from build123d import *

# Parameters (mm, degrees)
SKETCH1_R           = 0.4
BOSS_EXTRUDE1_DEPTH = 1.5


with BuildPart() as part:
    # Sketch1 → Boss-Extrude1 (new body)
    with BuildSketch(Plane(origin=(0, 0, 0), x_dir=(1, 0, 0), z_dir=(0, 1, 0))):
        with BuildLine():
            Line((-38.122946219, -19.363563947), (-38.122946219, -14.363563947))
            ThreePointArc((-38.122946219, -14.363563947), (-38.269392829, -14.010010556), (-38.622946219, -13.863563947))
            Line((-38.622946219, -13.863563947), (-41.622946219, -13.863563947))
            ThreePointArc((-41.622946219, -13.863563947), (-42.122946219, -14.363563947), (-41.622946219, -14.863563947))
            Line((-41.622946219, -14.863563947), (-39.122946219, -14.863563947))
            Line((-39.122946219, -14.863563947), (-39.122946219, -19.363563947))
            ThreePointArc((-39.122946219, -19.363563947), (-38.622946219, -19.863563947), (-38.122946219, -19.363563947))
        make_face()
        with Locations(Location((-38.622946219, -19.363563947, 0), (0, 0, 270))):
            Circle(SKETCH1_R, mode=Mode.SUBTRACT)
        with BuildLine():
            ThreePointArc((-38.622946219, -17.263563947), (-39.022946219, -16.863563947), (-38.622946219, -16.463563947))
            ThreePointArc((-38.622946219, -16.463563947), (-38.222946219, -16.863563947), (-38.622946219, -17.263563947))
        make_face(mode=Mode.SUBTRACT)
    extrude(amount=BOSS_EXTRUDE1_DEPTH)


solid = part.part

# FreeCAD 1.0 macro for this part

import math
import FreeCAD as App
import Part
import Sketcher
Q = App.Units.Quantity

doc = App.newDocument("Part")
body = doc.addObject("PartDesign::Body", "Body")

# Sketch on XZ plane
sketch1 = body.newObject("Sketcher::SketchObject", "Sketch")
sketch1.AttachmentSupport = (doc.getObject("XZ_Plane"), [""])
sketch1.MapMode = "FlatFace"
sketch1.addGeometry([
    Part.LineSegment(App.Vector(-38.12, 19.36, 0), App.Vector(-38.12, 14.36, 0)),  # 0
    Part.ArcOfCircle(Part.Circle(App.Vector(-38.62, 14.36, 0), App.Vector(0, 0, 1), 0.5), math.radians(-90), math.radians(0)),  # 1
    Part.LineSegment(App.Vector(-38.62, 13.86, 0), App.Vector(-41.62, 13.86, 0)),  # 2
    Part.ArcOfCircle(Part.Circle(App.Vector(-41.62, 14.36, 0), App.Vector(0, 0, 1), 0.5), math.radians(90), math.radians(270)),  # 3
    Part.LineSegment(App.Vector(-41.62, 14.86, 0), App.Vector(-39.12, 14.86, 0)),  # 4
    Part.LineSegment(App.Vector(-39.12, 14.86, 0), App.Vector(-39.12, 19.36, 0)),  # 5
    Part.ArcOfCircle(Part.Circle(App.Vector(-38.62, 19.36, 0), App.Vector(0, 0, 1), 0.5), math.radians(0), math.radians(180)),  # 6
    Part.Circle(App.Vector(-38.62, 19.36, 0), App.Vector(0, 0, 1), 0.4),  # 7
    Part.Circle(App.Vector(-38.62, 16.86, 0), App.Vector(0, 0, 1), 0.4),  # 8
], False)
sketch1.addConstraint([
    Sketcher.Constraint("Tangent", 0, 2, 1, 2),
    Sketcher.Constraint("Tangent", 1, 1, 2, 1),
    Sketcher.Constraint("Tangent", 2, 2, 3, 2),
    Sketcher.Constraint("Tangent", 3, 1, 4, 1),
    Sketcher.Constraint("Coincident", 4, 2, 5, 1),
    Sketcher.Constraint("Tangent", 5, 2, 6, 2),
    Sketcher.Constraint("Tangent", 6, 1, 0, 1),
    Sketcher.Constraint("Vertical", 0),
    Sketcher.Constraint("Horizontal", 2),
    Sketcher.Constraint("Horizontal", 4),
    Sketcher.Constraint("Vertical", 5),
    Sketcher.Constraint("Coincident", 7, 3, 6, 3),
    Sketcher.Constraint("Equal", 1, 3),
    Sketcher.Constraint("Equal", 3, 6),
    Sketcher.Constraint("Equal", 7, 8),
    Sketcher.Constraint("Vertical", 7, 3, 8, 3),
    Sketcher.Constraint("Diameter", 7, Q("0.8 mm")),
    Sketcher.Constraint("Radius", 1, Q("0.5 mm")),
    Sketcher.Constraint("DistanceX", 2, 2, 2, 1, Q("3 mm")),
    Sketcher.Constraint("DistanceY", 0, 2, 0, 1, Q("5 mm")),
    Sketcher.Constraint("DistanceY", 1, 1, 8, 3, Q("3 mm")),
    Sketcher.Constraint("DistanceX", 1, 3, -1, 1, Q("38.622946 mm")),
    Sketcher.Constraint("DistanceY", -1, 1, 1, 3, Q("14.363564 mm")),
])
pad1 = body.newObject("PartDesign::Pad", "Pad")
pad1.Profile = sketch1
pad1.Length = 1.5
pad1.Reversed = True

doc.recompute()
